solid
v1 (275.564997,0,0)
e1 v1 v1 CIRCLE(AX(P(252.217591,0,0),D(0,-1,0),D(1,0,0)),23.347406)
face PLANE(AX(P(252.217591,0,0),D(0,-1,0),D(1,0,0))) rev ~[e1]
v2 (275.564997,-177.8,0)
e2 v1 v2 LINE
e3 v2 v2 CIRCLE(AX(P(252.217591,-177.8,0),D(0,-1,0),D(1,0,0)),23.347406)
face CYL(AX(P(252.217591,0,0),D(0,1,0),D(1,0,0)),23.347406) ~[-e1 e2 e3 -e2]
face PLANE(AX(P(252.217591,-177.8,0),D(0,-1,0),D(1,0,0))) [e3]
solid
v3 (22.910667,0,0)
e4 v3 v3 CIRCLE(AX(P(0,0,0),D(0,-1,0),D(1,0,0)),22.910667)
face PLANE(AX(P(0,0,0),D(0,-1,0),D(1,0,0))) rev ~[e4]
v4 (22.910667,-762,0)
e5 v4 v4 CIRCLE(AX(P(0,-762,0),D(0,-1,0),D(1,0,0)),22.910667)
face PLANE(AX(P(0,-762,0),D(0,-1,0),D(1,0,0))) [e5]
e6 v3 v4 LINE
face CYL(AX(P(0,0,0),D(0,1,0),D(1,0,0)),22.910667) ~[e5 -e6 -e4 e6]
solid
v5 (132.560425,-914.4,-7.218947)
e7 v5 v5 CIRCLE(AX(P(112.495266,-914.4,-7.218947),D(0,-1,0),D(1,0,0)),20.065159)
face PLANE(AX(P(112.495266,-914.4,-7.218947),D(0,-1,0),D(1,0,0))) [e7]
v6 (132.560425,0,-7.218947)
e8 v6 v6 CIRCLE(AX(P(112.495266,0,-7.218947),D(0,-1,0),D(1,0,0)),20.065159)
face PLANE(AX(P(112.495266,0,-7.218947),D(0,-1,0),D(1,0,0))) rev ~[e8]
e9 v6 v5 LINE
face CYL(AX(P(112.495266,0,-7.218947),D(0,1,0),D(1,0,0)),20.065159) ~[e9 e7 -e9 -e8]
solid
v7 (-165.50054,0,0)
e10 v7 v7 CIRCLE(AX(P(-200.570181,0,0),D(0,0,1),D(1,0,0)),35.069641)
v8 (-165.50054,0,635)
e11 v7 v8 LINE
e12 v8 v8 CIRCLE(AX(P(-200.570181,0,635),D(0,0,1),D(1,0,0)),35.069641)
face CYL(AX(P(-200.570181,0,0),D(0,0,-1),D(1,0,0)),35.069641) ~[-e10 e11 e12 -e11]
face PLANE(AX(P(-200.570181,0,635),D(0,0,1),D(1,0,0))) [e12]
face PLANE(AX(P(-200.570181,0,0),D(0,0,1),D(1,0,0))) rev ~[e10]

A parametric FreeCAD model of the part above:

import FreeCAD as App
import Part
import Sketcher

V = App.Vector
Q = App.Units.Quantity

doc = App.newDocument("Part")
body = doc.addObject("PartDesign::Body", "Body")

# Sketch on XZ plane
sketch1 = body.newObject("Sketcher::SketchObject", "Sketch")
sketch1.AttachmentSupport = (doc.getObject("XZ_Plane"), [""])
sketch1.MapMode = "FlatFace"
sketch1.addGeometry(Part.Circle(V(0, 0, 0), V(0, 0, 1), 23), False)
sketch1.addConstraint([
    Sketcher.Constraint("Coincident", 0, 3, -1, 1),
    Sketcher.Constraint("Diameter", 0, Q("45.821334 mm")),
])
pad1 = body.newObject("PartDesign::Pad", "Pad")
pad1.Profile = sketch1
pad1.Length = Q("30 in")
body2 = doc.addObject("PartDesign::Body", "Body001")

# Sketch on XZ plane
sketch2 = body2.newObject("Sketcher::SketchObject", "Sketch001")
sketch2.AttachmentSupport = (doc.getObject("XZ_Plane001"), [""])
sketch2.MapMode = "FlatFace"
sketch2.addGeometry(Part.Circle(V(112, -7, 0), V(0, 0, 1), 20), False)
sketch2.addConstraint([
    Sketcher.Constraint("Diameter", 0, Q("40.130318 mm")),
    Sketcher.Constraint("DistanceX", -1, 1, 0, 3, Q("112.495266 mm")),
    Sketcher.Constraint("DistanceY", 0, 3, -1, 1, Q("7.218947 mm")),
])
pad2 = body2.newObject("PartDesign::Pad", "Pad001")
pad2.Profile = sketch2
pad2.Length = Q("36 in")
body3 = doc.addObject("PartDesign::Body", "Body002")

# Sketch on XY plane
sketch3 = body3.newObject("Sketcher::SketchObject", "Sketch002")
sketch3.AttachmentSupport = (doc.getObject("XY_Plane002"), [""])
sketch3.MapMode = "FlatFace"
sketch3.addGeometry(Part.Circle(V(-201, 0, 0), V(0, 0, 1), 35), False)
sketch3.addConstraint([
    Sketcher.Constraint("PointOnObject", 0, 3, -1),
    Sketcher.Constraint("Diameter", 0, Q("70.139282 mm")),
    Sketcher.Constraint("DistanceX", 0, 3, -1, 1, Q("200.570181 mm")),
])
pad3 = body3.newObject("PartDesign::Pad", "Pad002")
pad3.Profile = sketch3
pad3.Length = Q("25 in")
body4 = doc.addObject("PartDesign::Body", "Body003")

# Sketch on XZ plane
sketch4 = body4.newObject("Sketcher::SketchObject", "Sketch003")
sketch4.AttachmentSupport = (doc.getObject("XZ_Plane003"), [""])
sketch4.MapMode = "FlatFace"
sketch4.addGeometry(Part.Circle(V(252, 0, 0), V(0, 0, 1), 23), False)
sketch4.addConstraint([
    Sketcher.Constraint("PointOnObject", 0, 3, -1),
    Sketcher.Constraint("Diameter", 0, Q("46.694812 mm")),
    Sketcher.Constraint("DistanceX", -1, 1, 0, 3, Q("252.217591 mm")),
])
pad4 = body4.newObject("PartDesign::Pad", "Pad003")
pad4.Profile = sketch4
pad4.Length = Q("7 in")

doc.recompute()
